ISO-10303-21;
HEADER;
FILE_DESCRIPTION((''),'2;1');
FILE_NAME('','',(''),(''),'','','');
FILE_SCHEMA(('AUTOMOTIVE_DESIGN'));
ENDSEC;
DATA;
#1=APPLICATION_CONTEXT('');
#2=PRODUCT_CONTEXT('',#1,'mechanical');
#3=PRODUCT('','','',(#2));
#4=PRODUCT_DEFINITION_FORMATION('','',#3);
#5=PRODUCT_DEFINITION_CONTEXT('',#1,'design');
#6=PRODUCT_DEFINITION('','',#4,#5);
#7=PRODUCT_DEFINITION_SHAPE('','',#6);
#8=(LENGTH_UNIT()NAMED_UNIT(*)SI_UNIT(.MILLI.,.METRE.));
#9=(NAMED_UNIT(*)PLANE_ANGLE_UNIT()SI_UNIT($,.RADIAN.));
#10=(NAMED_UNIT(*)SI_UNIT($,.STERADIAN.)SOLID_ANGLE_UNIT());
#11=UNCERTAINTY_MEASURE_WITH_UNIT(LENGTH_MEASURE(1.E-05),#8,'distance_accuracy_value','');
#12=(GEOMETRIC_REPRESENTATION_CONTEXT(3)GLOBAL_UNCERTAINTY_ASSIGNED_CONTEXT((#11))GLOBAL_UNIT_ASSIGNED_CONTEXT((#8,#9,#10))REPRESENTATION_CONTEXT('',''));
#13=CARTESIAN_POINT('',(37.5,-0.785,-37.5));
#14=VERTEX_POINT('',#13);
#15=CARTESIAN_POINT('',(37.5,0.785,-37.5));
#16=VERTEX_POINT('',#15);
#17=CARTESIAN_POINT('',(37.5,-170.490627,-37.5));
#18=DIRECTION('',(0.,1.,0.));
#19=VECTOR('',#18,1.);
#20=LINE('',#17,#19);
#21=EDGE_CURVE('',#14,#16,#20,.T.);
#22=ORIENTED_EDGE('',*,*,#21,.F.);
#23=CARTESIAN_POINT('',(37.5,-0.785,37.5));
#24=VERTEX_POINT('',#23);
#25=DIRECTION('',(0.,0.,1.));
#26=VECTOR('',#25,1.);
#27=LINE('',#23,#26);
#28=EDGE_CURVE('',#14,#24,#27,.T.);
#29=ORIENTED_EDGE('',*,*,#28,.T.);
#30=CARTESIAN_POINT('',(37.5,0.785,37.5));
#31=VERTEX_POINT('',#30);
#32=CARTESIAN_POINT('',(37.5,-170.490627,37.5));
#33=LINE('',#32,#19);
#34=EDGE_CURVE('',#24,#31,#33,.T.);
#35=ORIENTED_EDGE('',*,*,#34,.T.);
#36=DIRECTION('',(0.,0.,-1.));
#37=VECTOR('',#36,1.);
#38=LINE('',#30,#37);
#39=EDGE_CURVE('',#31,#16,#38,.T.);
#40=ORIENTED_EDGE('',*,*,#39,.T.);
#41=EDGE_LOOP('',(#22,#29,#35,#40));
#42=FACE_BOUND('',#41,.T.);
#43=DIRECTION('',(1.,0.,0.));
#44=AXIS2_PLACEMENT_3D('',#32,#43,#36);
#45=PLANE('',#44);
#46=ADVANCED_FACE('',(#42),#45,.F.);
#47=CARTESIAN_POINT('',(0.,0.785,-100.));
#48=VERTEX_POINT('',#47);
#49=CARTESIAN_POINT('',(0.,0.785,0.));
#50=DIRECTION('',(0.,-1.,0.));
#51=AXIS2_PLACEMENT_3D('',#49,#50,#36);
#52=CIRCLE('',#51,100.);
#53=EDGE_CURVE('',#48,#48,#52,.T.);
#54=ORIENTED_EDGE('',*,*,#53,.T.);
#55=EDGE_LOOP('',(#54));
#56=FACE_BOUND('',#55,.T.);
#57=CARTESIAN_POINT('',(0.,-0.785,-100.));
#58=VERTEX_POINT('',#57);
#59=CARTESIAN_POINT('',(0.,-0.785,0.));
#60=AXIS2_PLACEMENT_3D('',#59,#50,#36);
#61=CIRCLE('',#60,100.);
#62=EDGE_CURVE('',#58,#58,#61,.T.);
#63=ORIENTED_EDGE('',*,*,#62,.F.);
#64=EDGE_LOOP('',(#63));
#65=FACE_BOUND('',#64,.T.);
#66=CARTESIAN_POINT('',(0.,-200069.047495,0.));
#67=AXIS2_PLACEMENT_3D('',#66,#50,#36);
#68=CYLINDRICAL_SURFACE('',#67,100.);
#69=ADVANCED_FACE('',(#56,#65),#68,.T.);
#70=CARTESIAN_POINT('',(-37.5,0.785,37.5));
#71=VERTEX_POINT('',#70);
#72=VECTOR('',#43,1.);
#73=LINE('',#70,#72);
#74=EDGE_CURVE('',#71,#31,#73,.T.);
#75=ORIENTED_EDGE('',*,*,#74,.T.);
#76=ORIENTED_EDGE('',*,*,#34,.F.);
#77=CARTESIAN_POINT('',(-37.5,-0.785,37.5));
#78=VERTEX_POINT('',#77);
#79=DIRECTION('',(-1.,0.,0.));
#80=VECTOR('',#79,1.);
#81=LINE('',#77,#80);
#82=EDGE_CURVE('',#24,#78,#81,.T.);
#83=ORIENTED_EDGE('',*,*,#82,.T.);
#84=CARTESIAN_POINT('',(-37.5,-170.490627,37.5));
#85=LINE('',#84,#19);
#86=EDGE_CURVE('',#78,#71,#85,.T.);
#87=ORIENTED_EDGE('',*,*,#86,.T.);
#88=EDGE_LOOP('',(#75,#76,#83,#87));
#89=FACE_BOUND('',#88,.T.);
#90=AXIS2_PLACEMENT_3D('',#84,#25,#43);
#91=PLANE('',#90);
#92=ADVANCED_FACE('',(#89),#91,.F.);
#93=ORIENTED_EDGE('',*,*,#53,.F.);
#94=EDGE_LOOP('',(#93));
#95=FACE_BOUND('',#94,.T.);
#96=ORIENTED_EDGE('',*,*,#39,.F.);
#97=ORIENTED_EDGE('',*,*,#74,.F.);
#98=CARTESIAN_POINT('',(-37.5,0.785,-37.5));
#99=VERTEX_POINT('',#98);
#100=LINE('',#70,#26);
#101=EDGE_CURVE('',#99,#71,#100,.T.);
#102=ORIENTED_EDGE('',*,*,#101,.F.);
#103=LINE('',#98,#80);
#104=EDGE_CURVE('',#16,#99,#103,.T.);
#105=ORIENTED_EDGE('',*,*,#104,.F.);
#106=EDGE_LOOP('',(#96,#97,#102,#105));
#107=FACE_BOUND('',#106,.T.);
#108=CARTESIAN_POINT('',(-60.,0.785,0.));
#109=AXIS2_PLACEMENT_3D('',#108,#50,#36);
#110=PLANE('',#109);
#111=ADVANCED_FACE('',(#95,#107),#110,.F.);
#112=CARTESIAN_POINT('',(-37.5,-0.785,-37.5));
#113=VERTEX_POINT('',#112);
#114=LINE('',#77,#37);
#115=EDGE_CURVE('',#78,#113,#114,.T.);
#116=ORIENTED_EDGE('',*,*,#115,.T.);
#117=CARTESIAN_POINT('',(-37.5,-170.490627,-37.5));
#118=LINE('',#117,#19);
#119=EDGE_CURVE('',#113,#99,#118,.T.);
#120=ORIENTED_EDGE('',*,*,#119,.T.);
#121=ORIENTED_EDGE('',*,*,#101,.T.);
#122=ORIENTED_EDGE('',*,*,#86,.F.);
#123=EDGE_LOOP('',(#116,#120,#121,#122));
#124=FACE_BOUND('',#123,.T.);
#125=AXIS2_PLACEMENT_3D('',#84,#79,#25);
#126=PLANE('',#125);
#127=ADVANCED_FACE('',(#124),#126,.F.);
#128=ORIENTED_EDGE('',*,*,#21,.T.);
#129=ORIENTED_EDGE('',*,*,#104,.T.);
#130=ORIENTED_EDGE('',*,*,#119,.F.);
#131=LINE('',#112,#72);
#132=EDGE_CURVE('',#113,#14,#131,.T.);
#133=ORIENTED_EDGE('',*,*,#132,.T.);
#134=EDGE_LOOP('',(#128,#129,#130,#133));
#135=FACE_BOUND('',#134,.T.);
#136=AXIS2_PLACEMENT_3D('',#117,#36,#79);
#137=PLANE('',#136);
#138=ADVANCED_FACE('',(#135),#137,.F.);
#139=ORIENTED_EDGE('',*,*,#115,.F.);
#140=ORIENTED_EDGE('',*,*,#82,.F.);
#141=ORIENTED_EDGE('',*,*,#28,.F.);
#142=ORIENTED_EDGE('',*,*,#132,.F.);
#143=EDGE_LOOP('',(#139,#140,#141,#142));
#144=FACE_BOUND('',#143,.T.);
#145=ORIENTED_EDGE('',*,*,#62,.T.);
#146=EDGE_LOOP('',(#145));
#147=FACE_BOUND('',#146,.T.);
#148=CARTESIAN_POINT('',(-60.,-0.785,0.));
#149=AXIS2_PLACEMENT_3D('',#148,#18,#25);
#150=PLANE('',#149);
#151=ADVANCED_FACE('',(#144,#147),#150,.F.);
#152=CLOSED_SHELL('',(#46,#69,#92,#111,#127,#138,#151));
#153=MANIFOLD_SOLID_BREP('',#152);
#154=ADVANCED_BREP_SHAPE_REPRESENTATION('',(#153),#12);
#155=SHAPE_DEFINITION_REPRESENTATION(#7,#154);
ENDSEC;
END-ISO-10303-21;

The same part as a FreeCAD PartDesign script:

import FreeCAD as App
import Part
import Sketcher

V = App.Vector


def add_polygon(sketch, points):
    """Adds a closed chain of lines whose ends are joined by coincident constraints."""
    first, n = sketch.GeometryCount, len(points)
    for a, b in zip(points, points[1:] + points[:1]):
        sketch.addGeometry(Part.LineSegment(App.Vector(*a, 0), App.Vector(*b, 0)), False)
    for i in range(n):
        sketch.addConstraint(Sketcher.Constraint("Coincident", first + i, 2, first + (i + 1) % n, 1))

doc = App.newDocument("Part")
body = doc.addObject("PartDesign::Body", "Body")

sketch1 = body.newObject("Sketcher::SketchObject", "Sketch")
sketch1.AttachmentSupport = (doc.getObject("XY_Plane"), [""])
sketch1.MapMode = "FlatFace"
add_polygon(sketch1, [(-100, 0.8), (-100, -0.8), (-60, -0.8), (-60, 0.8)])
sketch1.addConstraint([
    Sketcher.Constraint("Vertical", 0),
    Sketcher.Constraint("Horizontal", 1),
    Sketcher.Constraint("Vertical", 2),
    Sketcher.Constraint("Horizontal", 3),
    Sketcher.Constraint("DistanceX", 1, 1, 1, 2, 40.0),
    Sketcher.Constraint("DistanceX", 0, 2, -1, 1, 100.0),
    Sketcher.Constraint("DistanceY", 0, 2, 0, 1, 1.57),
    Sketcher.Constraint("DistanceY", 0, 2, -1, 1, 0.785),
])
revolution = body.newObject("PartDesign::Revolution", "Revolution")
revolution.Profile = sketch1
revolution.ReferenceAxis = (sketch1, ["V_Axis"])
revolution.Angle = 360

sketch2 = body.newObject("Sketcher::SketchObject", "Sketch001")
sketch2.AttachmentSupport = (doc.getObject("XZ_Plane"), [""])
sketch2.MapMode = "FlatFace"
sketch2.AttachmentOffset = App.Placement(V(0, 0, 0.785), App.Rotation())
sketch2.addGeometry(Part.Circle(V(0, 0, 0), V(0, 0, 1), 60), False)
add_polygon(sketch2, [(38, 38), (-38, 38), (-38, -38), (38, -38)])
sketch2.addConstraint([
    Sketcher.Constraint("Horizontal", 1),
    Sketcher.Constraint("Vertical", 2),
    Sketcher.Constraint("Horizontal", 3),
    Sketcher.Constraint("Vertical", 4),
    Sketcher.Constraint("Coincident", 0, 3, -1, 1),
    Sketcher.Constraint("Symmetric", 1, 2, 3, 2, -1, 1),
    Sketcher.Constraint("Equal", 3, 2),
    Sketcher.Constraint("Diameter", 0, 120.0),
    Sketcher.Constraint("DistanceX", 1, 2, 1, 1, 75.0),
])
pad1 = body.newObject("PartDesign::Pad", "Pad")
pad1.Profile = sketch2
pad1.Length = 1.57
pad1.Reversed = True

doc.recompute()
